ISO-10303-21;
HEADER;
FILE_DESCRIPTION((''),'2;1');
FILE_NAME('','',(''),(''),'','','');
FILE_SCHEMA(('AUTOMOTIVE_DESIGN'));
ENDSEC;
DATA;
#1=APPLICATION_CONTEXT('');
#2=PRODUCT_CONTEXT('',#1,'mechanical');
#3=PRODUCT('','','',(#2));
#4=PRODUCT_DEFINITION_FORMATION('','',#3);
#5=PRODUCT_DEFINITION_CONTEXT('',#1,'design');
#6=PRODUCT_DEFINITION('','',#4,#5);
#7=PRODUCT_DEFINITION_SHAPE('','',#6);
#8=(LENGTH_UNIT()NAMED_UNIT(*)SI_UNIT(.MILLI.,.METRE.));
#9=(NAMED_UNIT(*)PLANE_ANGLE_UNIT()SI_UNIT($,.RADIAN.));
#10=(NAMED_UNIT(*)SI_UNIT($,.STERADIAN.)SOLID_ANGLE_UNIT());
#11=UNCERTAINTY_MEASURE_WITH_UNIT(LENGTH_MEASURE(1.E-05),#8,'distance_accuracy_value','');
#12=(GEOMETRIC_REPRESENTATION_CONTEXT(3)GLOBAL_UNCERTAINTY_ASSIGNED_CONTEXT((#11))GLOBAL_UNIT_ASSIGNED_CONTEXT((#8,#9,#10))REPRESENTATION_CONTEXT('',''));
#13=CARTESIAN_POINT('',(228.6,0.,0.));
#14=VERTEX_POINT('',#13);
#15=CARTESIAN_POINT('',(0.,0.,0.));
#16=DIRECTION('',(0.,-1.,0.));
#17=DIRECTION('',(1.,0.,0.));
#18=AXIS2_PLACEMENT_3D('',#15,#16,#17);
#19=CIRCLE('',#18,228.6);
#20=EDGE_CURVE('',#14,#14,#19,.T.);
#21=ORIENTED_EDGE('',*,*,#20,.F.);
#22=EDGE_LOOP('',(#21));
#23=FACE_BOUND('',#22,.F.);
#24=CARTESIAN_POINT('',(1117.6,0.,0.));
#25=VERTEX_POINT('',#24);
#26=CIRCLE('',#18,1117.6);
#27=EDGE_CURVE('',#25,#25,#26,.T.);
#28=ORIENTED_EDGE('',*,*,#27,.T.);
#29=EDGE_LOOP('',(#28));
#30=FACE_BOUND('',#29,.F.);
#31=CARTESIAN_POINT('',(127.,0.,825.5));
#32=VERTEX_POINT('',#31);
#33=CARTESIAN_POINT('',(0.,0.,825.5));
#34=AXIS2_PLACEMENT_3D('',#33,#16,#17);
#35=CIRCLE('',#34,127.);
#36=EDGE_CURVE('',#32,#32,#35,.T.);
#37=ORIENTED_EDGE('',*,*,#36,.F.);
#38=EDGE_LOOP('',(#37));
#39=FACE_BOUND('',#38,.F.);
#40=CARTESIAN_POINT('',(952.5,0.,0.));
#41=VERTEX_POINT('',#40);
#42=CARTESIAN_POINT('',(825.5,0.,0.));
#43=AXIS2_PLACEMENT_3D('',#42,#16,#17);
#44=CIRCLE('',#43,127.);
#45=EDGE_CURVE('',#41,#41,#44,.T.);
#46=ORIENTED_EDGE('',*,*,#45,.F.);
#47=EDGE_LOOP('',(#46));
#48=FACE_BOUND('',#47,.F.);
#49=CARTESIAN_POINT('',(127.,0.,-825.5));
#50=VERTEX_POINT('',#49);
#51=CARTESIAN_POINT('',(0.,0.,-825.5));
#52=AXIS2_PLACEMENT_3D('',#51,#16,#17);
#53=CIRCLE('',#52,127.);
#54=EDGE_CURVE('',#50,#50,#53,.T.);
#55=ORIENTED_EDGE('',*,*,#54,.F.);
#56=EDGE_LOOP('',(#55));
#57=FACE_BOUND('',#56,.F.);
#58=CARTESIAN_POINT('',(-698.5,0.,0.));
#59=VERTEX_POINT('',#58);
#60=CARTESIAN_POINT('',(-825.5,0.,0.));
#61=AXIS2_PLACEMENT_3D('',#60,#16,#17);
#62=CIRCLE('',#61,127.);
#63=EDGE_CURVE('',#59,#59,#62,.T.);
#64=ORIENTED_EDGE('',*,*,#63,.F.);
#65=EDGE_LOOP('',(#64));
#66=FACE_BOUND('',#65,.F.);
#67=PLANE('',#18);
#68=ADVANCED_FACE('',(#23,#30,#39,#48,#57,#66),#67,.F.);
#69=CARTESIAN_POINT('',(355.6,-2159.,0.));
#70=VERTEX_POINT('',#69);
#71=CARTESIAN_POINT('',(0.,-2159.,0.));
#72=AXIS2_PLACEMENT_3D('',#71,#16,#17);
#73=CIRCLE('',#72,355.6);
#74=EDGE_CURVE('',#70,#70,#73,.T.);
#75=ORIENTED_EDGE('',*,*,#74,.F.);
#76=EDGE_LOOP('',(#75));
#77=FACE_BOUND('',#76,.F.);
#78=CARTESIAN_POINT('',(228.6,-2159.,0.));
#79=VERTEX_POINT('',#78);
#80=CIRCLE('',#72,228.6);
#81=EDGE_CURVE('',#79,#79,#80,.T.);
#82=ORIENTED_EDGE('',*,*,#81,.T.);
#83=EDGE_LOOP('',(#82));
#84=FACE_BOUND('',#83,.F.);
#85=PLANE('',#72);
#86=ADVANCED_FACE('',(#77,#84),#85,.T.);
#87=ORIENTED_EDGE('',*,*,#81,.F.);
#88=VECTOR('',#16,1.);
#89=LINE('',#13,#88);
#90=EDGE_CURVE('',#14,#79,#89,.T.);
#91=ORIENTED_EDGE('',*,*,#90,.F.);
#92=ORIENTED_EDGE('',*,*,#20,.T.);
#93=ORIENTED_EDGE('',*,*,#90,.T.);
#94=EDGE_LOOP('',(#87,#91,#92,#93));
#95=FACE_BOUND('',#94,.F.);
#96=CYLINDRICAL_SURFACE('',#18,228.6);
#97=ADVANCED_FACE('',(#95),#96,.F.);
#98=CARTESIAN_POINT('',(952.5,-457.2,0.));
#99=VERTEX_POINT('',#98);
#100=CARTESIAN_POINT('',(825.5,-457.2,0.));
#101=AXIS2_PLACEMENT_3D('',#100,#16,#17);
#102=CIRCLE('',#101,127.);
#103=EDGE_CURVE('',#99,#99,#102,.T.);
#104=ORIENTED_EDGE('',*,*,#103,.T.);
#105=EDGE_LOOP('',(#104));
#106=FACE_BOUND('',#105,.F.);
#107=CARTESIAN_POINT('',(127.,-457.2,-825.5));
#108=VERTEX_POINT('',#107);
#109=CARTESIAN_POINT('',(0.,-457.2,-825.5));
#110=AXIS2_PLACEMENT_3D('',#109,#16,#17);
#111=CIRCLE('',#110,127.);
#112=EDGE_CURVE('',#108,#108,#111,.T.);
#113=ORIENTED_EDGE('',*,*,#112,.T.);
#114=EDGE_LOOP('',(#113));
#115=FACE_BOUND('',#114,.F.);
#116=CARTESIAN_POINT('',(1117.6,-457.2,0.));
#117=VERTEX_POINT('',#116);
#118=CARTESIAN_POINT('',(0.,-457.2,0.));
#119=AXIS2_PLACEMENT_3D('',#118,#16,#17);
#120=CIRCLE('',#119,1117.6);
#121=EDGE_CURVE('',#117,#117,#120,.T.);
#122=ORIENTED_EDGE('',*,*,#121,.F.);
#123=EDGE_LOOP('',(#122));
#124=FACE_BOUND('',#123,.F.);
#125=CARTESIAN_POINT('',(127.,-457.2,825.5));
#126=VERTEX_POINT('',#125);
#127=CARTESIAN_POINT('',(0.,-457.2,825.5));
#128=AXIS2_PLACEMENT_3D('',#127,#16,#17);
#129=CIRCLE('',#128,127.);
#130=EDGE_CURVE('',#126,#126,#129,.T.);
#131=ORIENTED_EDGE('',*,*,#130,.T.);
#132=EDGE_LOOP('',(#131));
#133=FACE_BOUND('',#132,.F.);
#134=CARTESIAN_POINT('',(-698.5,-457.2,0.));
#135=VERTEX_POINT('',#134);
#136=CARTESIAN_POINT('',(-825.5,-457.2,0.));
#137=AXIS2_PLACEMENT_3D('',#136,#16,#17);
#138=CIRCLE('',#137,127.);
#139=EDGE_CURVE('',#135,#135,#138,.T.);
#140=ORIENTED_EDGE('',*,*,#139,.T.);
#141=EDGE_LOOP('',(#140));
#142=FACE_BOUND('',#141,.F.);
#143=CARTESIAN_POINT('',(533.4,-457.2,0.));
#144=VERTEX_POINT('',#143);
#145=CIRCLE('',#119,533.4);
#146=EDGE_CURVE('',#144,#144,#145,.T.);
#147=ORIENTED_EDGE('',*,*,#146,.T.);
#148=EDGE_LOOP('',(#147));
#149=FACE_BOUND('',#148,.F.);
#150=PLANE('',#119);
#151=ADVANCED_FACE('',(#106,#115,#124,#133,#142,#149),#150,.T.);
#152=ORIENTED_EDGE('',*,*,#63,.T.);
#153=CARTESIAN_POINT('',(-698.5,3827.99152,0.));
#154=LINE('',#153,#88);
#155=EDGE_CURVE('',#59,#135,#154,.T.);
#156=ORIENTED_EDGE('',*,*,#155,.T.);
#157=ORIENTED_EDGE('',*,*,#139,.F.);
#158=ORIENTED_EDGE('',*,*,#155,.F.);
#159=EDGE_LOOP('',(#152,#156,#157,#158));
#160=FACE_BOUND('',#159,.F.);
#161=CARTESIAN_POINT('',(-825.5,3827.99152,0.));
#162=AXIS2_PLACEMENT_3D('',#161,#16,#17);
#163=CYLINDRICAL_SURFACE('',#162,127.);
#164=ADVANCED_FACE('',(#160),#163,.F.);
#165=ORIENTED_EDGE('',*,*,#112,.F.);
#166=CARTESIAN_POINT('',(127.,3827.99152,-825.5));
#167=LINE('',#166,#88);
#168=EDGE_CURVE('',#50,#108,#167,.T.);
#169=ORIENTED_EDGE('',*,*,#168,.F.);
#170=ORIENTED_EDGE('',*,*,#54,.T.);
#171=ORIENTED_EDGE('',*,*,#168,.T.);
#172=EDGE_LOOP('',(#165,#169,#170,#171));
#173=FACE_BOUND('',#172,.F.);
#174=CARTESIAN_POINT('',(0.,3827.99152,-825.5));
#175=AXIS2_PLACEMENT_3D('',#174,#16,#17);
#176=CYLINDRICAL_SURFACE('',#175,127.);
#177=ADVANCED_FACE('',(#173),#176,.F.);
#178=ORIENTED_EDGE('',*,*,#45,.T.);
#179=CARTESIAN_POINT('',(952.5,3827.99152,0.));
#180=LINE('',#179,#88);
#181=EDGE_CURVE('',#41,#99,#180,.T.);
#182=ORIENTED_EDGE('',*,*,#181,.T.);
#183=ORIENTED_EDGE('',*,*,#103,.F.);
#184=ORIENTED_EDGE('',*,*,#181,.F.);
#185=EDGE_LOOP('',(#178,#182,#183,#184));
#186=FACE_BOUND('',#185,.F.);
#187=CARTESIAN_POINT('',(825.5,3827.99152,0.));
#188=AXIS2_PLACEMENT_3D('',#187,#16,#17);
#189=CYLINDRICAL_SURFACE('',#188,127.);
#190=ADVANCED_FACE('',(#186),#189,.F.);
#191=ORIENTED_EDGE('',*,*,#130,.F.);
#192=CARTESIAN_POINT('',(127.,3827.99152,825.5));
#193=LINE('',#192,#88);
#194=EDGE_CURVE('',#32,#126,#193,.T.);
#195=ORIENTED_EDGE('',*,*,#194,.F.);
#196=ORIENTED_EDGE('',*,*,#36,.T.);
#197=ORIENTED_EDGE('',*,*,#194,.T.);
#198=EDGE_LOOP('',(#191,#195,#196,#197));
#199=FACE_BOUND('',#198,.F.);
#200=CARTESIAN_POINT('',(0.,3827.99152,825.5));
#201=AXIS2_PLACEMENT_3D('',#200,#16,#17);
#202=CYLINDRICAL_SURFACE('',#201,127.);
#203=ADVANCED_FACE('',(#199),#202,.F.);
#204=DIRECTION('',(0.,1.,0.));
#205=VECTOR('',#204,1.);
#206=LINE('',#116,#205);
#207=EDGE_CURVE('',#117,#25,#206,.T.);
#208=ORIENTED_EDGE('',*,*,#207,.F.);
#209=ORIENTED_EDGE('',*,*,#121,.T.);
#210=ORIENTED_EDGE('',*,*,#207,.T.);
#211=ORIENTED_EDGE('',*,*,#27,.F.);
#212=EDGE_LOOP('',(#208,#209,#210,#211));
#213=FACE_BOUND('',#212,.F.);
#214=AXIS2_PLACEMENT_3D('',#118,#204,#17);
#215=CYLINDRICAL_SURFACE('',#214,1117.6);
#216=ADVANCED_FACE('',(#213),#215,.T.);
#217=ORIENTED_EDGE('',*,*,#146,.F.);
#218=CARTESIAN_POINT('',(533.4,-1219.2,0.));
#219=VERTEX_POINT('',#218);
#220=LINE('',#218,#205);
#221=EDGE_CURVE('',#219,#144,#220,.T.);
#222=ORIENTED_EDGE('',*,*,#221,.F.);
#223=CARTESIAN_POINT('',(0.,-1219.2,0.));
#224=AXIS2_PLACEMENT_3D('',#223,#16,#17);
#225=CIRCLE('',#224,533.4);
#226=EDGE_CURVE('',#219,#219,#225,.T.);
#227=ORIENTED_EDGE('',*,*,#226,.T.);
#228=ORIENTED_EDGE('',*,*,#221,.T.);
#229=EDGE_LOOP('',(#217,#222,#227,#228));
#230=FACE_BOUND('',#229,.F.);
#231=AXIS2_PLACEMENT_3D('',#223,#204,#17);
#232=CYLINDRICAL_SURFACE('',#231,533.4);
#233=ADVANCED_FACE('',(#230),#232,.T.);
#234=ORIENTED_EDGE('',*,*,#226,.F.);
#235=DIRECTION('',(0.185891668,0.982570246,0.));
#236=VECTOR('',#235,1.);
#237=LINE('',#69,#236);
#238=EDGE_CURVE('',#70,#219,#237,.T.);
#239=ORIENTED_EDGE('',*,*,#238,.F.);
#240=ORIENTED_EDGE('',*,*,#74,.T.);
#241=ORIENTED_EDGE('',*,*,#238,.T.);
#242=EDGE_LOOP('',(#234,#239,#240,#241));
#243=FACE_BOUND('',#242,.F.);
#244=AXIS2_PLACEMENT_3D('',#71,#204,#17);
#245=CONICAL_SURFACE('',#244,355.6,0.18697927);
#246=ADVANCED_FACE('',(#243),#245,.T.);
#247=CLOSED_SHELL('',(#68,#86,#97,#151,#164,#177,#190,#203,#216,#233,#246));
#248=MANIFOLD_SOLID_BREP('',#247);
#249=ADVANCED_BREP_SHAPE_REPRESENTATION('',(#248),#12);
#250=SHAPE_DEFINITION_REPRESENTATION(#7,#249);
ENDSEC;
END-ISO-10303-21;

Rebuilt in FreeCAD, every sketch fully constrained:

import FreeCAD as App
import Part
import Sketcher
Q = App.Units.Quantity

doc = App.newDocument("Part")
body = doc.addObject("PartDesign::Body", "Body")

# Sketch on XY plane
sketch1 = doc.addObject("Sketcher::SketchObject", "Sketch")
body.addObject(sketch1)
sketch1.AttachmentSupport = (doc.XY_Plane, [""])
sketch1.MapMode = "FlatFace"
sketch1.addGeometry(Part.LineSegment(App.Vector(1118, -457, 0), App.Vector(1118, 0, 0)), False)
sketch1.addGeometry(Part.LineSegment(App.Vector(1118, 0, 0), App.Vector(229, 0, 0)), False)
sketch1.addGeometry(Part.LineSegment(App.Vector(229, 0, 0), App.Vector(229, -2159, 0)), False)
sketch1.addGeometry(Part.LineSegment(App.Vector(229, -2159, 0), App.Vector(356, -2159, 0)), False)
sketch1.addGeometry(Part.LineSegment(App.Vector(356, -2159, 0), App.Vector(533, -1219, 0)), False)
sketch1.addGeometry(Part.LineSegment(App.Vector(533, -1219, 0), App.Vector(533, -457, 0)), False)
sketch1.addGeometry(Part.LineSegment(App.Vector(533, -457, 0), App.Vector(1118, -457, 0)), False)
sketch1.addConstraint(Sketcher.Constraint("Coincident", 0, 2, 1, 1))
sketch1.addConstraint(Sketcher.Constraint("Coincident", 1, 2, 2, 1))
sketch1.addConstraint(Sketcher.Constraint("Coincident", 2, 2, 3, 1))
sketch1.addConstraint(Sketcher.Constraint("Coincident", 3, 2, 4, 1))
sketch1.addConstraint(Sketcher.Constraint("Coincident", 4, 2, 5, 1))
sketch1.addConstraint(Sketcher.Constraint("Coincident", 5, 2, 6, 1))
sketch1.addConstraint(Sketcher.Constraint("Coincident", 6, 2, 0, 1))
sketch1.addConstraint(Sketcher.Constraint("Vertical", 0))
sketch1.addConstraint(Sketcher.Constraint("Horizontal", 1))
sketch1.addConstraint(Sketcher.Constraint("Vertical", 2))
sketch1.addConstraint(Sketcher.Constraint("Horizontal", 3))
sketch1.addConstraint(Sketcher.Constraint("Vertical", 5))
sketch1.addConstraint(Sketcher.Constraint("Horizontal", 6))
sketch1.addConstraint(Sketcher.Constraint("PointOnObject", 0, 2, -1))
sketch1.addConstraint(Sketcher.Constraint("DistanceX", 1, 2, 1, 1, Q("35 in")))
sketch1.addConstraint(Sketcher.Constraint("DistanceX", 3, 1, 3, 2, Q("5 in")))
sketch1.addConstraint(Sketcher.Constraint("DistanceX", 6, 1, 6, 2, Q("23 in")))
sketch1.addConstraint(Sketcher.Constraint("DistanceY", 0, 1, 0, 2, Q("18 in")))
sketch1.addConstraint(Sketcher.Constraint("DistanceY", 2, 2, 2, 1, Q("85 in")))
sketch1.addConstraint(Sketcher.Constraint("DistanceY", 5, 1, 5, 2, Q("30 in")))
sketch1.addConstraint(Sketcher.Constraint("DistanceX", -1, 1, 0, 2, Q("44 in")))
revolution = doc.addObject("PartDesign::Revolution", "Revolution")
body.addObject(revolution)
revolution.Profile = sketch1
revolution.ReferenceAxis = (sketch1, ["V_Axis"])
revolution.Angle = 360

# Sketch on XZ plane
sketch2 = doc.addObject("Sketcher::SketchObject", "Sketch001")
body.addObject(sketch2)
sketch2.AttachmentSupport = (doc.XZ_Plane, [""])
sketch2.MapMode = "FlatFace"
sketch2.addGeometry(Part.Circle(App.Vector(0, 826, 0), App.Vector(0, 0, 1), 127), False)
sketch2.addGeometry(Part.Circle(App.Vector(826, 0, 0), App.Vector(0, 0, 1), 127), False)
sketch2.addGeometry(Part.Circle(App.Vector(-826, 0, 0), App.Vector(0, 0, 1), 127), False)
sketch2.addGeometry(Part.Circle(App.Vector(0, -826, 0), App.Vector(0, 0, 1), 127), False)
sketch2.addConstraint(Sketcher.Constraint("Equal", 0, 1))
sketch2.addConstraint(Sketcher.Constraint("Equal", 1, 2))
sketch2.addConstraint(Sketcher.Constraint("Equal", 2, 3))
sketch2.addConstraint(Sketcher.Constraint("Symmetric", 1, 3, 2, 3, -1, 1))
sketch2.addConstraint(Sketcher.Constraint("Symmetric", 0, 3, 3, 3, -1, 1))
sketch2.addConstraint(Sketcher.Constraint("PointOnObject", 0, 3, -2))
sketch2.addConstraint(Sketcher.Constraint("PointOnObject", 1, 3, -1))
sketch2.addConstraint(Sketcher.Constraint("Diameter", 0, Q("10 in")))
sketch2.addConstraint(Sketcher.Constraint("DistanceX", 2, 3, 1, 3, Q("65 in")))
sketch2.addConstraint(Sketcher.Constraint("DistanceY", 3, 3, 0, 3, Q("65 in")))
doc.recompute()
hole = doc.addObject("PartDesign::Hole", "Hole")
body.addObject(hole)
hole.Profile = sketch2
hole.ThreadType = "None"
hole.Diameter = Q("10 in")
hole.DepthType = "ThroughAll"
hole.Reversed = True

doc.recompute()
